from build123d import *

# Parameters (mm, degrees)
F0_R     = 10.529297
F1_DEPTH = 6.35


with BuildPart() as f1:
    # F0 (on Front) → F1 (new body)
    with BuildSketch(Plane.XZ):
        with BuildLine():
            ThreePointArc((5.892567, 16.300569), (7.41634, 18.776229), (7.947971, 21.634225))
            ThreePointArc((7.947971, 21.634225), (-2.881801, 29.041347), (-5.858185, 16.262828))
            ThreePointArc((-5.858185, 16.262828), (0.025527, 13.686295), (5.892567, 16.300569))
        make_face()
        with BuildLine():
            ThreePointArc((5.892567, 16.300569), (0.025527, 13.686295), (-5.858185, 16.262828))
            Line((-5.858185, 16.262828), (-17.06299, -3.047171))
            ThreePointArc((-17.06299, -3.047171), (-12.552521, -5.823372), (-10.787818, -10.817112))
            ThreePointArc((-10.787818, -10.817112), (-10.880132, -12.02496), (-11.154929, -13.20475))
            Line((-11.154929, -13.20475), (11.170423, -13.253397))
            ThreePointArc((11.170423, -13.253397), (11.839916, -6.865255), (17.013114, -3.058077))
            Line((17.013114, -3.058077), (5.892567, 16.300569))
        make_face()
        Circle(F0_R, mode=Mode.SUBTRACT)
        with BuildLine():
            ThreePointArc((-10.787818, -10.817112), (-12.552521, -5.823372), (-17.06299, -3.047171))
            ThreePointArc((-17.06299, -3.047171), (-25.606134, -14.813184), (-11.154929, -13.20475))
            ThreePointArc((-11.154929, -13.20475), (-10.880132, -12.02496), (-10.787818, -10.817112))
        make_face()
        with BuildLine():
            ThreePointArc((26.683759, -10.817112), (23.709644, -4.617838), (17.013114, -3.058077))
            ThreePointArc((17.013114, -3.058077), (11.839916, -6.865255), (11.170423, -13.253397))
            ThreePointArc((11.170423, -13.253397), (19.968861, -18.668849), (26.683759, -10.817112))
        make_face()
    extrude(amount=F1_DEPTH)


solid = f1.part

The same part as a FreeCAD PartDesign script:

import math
import FreeCAD as App
import Part
import Sketcher
from FreeCAD import Vector
Q = App.Units.Quantity

doc = App.newDocument("Part")
body = doc.addObject("PartDesign::Body", "Body")

sketch1 = body.newObject("Sketcher::SketchObject", "Sketch")
sketch1.AttachmentSupport = (doc.getObject("XZ_Plane"), [""])
sketch1.MapMode = "FlatFace"
sketch1.addGeometry([
    Part.ArcOfCircle(Part.Circle(Vector(0, 22, 0), Vector(0, 0, 1), 8), math.radians(-42), math.radians(0)),
    Part.ArcOfCircle(Part.Circle(Vector(0, 22, 0), Vector(0, 0, 1), 8), math.radians(0), math.radians(223)),
    Part.LineSegment(Vector(-6, 16, 0), Vector(-17, -3, 0)),
    Part.ArcOfCircle(Part.Circle(Vector(-19, -11, 0), Vector(0, 0, 1), 8), math.radians(78), math.radians(343)),
    Part.LineSegment(Vector(-11, -13, 0), Vector(11, -13, 0)),
    Part.ArcOfCircle(Part.Circle(Vector(19, -11, 0), Vector(0, 0, 1), 8), math.radians(-162), math.radians(0)),
    Part.ArcOfCircle(Part.Circle(Vector(19, -11, 0), Vector(0, 0, 1), 8), math.radians(0), math.radians(103)),
    Part.LineSegment(Vector(17, -3, 0), Vector(6, 16, 0)),
    Part.Circle(Vector(0, 0, 0), Vector(0, 0, 1), 11),
], False)
sketch1.addConstraint([
    Sketcher.Constraint("Tangent", 0, 2, 1, 1),
    Sketcher.Constraint("Coincident", 1, 2, 2, 1),
    Sketcher.Constraint("Coincident", 2, 2, 3, 1),
    Sketcher.Constraint("Coincident", 3, 2, 4, 1),
    Sketcher.Constraint("Coincident", 4, 2, 5, 1),
    Sketcher.Constraint("Tangent", 5, 2, 6, 1),
    Sketcher.Constraint("Coincident", 6, 2, 7, 1),
    Sketcher.Constraint("Coincident", 7, 2, 0, 1),
    Sketcher.Constraint("Coincident", 8, 3, -1, 1),
    Sketcher.Constraint("Equal", 1, 3),
    Sketcher.Constraint("Equal", 3, 5),
    Sketcher.Constraint("Equal", 5, 6),
    Sketcher.Constraint("Symmetric", 3, 3, 5, 3, -2),
    Sketcher.Constraint("PointOnObject", 1, 3, -2),
    Sketcher.Constraint("Horizontal", 1, 3, 0, 2),
    Sketcher.Constraint("Horizontal", 6, 3, 5, 2),
    Sketcher.Constraint("Equal", 2, 4),
    Sketcher.Constraint("Equal", 4, 7),
    Sketcher.Constraint("Radius", 0, 7.947968),
    Sketcher.Constraint("Radius", 1, 7.947971),
    Sketcher.Constraint("Diameter", 8, 21.058594),
    Sketcher.Constraint("DistanceX", 3, 2, 5, 3, Q("1.1767999 in")),
    Sketcher.Constraint("DistanceX", 3, 3, 2, 2, 1.672798),
    Sketcher.Constraint("DistanceY", 2, 2, 1, 2, 19.309999),
    Sketcher.Constraint("DistanceX", 3, 3, -1, 1, 18.735788),
    Sketcher.Constraint("DistanceY", 6, 3, -1, 1, 10.817112),
    Sketcher.Constraint("DistanceY", -1, 1, 7, 2, 16.300569),
    Sketcher.Constraint("DistanceX", 3, 3, 4, 2, 29.906211),
])
pad1 = body.newObject("PartDesign::Pad", "Pad")
pad1.Profile = sketch1
pad1.Length = Q("0.25 in")

doc.recompute()
